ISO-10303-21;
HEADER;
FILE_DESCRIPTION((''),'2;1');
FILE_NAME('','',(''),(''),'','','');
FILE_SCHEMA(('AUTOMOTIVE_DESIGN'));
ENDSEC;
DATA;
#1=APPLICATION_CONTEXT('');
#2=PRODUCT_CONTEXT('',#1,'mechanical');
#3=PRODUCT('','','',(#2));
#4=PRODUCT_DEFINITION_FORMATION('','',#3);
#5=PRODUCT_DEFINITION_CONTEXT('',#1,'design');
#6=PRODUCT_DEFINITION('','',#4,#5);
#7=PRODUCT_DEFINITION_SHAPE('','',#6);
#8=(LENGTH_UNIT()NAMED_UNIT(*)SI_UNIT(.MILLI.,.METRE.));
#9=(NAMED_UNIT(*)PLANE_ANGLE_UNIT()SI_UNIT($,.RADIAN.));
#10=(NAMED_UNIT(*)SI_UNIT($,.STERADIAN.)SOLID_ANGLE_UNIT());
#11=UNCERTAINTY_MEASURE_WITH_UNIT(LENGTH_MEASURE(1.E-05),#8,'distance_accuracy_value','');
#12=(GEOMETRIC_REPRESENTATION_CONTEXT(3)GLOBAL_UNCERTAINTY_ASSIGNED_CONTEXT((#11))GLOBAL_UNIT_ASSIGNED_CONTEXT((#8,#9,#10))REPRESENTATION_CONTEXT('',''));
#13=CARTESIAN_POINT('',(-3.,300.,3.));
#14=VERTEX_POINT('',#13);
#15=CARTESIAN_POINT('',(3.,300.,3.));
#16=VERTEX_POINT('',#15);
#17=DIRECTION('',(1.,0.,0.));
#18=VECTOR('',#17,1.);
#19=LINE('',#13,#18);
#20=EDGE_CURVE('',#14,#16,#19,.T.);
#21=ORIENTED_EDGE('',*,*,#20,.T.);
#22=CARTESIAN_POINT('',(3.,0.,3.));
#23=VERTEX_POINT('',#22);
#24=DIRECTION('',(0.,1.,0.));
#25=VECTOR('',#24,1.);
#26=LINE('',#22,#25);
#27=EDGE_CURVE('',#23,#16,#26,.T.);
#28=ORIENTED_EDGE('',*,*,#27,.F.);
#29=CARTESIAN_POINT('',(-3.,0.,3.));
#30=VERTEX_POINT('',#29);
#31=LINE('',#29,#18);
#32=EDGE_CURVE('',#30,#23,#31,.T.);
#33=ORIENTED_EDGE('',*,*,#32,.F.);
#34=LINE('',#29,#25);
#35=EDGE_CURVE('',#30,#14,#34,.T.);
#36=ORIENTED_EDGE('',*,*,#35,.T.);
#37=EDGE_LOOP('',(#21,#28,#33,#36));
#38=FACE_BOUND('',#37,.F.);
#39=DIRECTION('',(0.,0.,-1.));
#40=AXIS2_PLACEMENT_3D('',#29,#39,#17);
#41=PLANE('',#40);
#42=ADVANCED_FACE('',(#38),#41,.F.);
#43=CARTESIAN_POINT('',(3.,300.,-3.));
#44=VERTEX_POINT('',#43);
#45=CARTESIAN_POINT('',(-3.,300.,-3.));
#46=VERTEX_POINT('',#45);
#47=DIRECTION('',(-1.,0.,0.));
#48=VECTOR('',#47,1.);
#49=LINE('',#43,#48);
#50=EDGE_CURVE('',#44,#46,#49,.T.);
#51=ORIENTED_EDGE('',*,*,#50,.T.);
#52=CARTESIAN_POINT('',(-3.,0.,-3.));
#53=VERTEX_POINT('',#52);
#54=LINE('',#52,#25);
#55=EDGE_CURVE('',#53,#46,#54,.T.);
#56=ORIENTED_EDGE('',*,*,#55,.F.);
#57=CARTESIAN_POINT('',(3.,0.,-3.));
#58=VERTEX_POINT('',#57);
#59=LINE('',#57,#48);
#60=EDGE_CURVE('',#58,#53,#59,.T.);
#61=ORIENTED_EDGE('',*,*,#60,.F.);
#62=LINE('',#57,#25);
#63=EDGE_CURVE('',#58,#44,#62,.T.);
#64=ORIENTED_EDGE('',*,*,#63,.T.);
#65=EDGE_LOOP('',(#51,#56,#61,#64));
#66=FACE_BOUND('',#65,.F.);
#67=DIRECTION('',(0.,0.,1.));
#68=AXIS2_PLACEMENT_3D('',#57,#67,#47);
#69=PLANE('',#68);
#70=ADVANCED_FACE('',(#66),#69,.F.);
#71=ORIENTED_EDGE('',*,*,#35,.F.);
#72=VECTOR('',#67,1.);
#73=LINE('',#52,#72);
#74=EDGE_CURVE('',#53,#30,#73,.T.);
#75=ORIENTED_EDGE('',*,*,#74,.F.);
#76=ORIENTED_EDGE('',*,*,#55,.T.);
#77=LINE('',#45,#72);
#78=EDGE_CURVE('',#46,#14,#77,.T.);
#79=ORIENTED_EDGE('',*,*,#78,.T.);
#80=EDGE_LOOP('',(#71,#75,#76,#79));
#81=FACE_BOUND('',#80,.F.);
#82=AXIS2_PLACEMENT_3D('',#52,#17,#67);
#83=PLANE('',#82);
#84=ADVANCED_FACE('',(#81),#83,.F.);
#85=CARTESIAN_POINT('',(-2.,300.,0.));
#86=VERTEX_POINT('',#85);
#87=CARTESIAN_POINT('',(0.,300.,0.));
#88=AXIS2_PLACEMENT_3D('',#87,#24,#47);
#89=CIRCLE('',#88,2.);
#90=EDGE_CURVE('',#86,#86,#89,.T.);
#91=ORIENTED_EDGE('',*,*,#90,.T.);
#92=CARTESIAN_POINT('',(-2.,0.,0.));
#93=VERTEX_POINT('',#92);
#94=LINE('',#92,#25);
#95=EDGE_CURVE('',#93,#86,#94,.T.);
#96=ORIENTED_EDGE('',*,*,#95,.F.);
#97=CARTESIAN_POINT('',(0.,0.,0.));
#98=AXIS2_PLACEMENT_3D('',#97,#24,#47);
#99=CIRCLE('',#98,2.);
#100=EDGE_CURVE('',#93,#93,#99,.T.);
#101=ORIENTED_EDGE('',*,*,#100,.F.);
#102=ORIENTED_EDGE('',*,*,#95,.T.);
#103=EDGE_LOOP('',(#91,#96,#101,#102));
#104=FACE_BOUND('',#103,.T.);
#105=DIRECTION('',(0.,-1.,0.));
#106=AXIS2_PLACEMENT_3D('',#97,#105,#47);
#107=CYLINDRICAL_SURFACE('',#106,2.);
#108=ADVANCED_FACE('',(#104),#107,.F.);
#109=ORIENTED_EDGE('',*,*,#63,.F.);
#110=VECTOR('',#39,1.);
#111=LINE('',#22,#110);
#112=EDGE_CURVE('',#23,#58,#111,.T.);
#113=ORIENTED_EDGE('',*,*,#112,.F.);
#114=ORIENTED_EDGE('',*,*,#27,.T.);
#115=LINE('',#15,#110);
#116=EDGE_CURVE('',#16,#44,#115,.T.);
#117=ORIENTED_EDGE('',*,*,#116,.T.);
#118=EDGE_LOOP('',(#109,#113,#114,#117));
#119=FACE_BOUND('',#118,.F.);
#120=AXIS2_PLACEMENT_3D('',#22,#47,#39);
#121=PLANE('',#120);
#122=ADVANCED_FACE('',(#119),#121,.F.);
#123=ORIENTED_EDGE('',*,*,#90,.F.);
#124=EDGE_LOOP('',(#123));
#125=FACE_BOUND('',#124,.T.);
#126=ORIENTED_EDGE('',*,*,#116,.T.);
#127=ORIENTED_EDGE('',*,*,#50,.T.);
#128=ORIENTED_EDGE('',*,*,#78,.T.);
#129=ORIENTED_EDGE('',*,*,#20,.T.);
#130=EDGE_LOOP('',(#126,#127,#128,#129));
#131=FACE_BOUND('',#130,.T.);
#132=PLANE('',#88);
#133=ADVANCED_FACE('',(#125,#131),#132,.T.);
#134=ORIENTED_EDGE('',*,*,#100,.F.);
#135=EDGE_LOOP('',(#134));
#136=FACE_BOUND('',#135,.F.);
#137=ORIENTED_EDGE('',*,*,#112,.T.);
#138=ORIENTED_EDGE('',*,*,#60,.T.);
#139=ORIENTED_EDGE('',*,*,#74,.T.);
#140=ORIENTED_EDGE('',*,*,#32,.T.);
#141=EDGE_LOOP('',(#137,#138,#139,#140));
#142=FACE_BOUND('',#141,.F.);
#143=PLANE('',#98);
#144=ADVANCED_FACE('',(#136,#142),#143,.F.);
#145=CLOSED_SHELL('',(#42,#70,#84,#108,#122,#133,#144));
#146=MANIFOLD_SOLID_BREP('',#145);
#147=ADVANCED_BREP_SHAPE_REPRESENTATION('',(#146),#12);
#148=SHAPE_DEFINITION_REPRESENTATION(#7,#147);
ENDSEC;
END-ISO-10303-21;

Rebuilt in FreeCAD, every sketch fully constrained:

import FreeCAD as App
import Part
import Sketcher
from FreeCAD import Vector
Q = App.Units.Quantity


def add_polygon(sketch, points):
    """Adds a closed chain of lines whose ends are joined by coincident constraints."""
    first, n = sketch.GeometryCount, len(points)
    for a, b in zip(points, points[1:] + points[:1]):
        sketch.addGeometry(Part.LineSegment(App.Vector(*a, 0), App.Vector(*b, 0)), False)
    for i in range(n):
        sketch.addConstraint(Sketcher.Constraint("Coincident", first + i, 2, first + (i + 1) % n, 1))

doc = App.newDocument("Part")
params = doc.addObject("Spreadsheet::Sheet", "Params")
for row, (alias, value) in enumerate([
    ("sketch1_diameter", "4 mm"),
    ("sketch1_width", "6 mm"),
    ("pad1_length", "300 mm"),
], start=1):
    params.set(f"A{row}", alias)
    params.set(f"B{row}", "=" + value)
    params.setAlias(f"B{row}", alias)

body = doc.addObject("PartDesign::Body", "Body")

# Sketch on XZ plane
sketch1 = body.newObject("Sketcher::SketchObject", "Sketch")
sketch1.AttachmentSupport = (doc.getObject("XZ_Plane"), [""])
sketch1.MapMode = "FlatFace"
add_polygon(sketch1, [(-3, -3), (-3, 3), (3, 3), (3, -3)])  # lines 0-3
sketch1.addGeometry(Part.Circle(Vector(0, 0, 0), Vector(0, 0, 1), 2), False)  # 4
sketch1.addConstraint(Sketcher.Constraint("Vertical", 0))
sketch1.addConstraint(Sketcher.Constraint("Horizontal", 1))
sketch1.addConstraint(Sketcher.Constraint("Vertical", 2))
sketch1.addConstraint(Sketcher.Constraint("Horizontal", 3))
sketch1.addConstraint(Sketcher.Constraint("Coincident", 4, 3, -1, 1))
sketch1.addConstraint(Sketcher.Constraint("Symmetric", 0, 2, 2, 2, -1, 1))
sketch1.addConstraint(Sketcher.Constraint("Equal", 3, 0))
sketch1.addConstraint(Sketcher.Constraint("Diameter", 4, Q("4 mm")))
sketch1.addConstraint(Sketcher.Constraint("DistanceX", 1, 1, 1, 2, Q("6 mm")))
sketch1.setExpression("Constraints[11]", "Params.sketch1_diameter")
sketch1.setExpression("Constraints[12]", "Params.sketch1_width")
pad1 = body.newObject("PartDesign::Pad", "Pad")
pad1.Profile = sketch1
pad1.setExpression("Length", "Params.pad1_length")
pad1.Reversed = True

doc.recompute()
